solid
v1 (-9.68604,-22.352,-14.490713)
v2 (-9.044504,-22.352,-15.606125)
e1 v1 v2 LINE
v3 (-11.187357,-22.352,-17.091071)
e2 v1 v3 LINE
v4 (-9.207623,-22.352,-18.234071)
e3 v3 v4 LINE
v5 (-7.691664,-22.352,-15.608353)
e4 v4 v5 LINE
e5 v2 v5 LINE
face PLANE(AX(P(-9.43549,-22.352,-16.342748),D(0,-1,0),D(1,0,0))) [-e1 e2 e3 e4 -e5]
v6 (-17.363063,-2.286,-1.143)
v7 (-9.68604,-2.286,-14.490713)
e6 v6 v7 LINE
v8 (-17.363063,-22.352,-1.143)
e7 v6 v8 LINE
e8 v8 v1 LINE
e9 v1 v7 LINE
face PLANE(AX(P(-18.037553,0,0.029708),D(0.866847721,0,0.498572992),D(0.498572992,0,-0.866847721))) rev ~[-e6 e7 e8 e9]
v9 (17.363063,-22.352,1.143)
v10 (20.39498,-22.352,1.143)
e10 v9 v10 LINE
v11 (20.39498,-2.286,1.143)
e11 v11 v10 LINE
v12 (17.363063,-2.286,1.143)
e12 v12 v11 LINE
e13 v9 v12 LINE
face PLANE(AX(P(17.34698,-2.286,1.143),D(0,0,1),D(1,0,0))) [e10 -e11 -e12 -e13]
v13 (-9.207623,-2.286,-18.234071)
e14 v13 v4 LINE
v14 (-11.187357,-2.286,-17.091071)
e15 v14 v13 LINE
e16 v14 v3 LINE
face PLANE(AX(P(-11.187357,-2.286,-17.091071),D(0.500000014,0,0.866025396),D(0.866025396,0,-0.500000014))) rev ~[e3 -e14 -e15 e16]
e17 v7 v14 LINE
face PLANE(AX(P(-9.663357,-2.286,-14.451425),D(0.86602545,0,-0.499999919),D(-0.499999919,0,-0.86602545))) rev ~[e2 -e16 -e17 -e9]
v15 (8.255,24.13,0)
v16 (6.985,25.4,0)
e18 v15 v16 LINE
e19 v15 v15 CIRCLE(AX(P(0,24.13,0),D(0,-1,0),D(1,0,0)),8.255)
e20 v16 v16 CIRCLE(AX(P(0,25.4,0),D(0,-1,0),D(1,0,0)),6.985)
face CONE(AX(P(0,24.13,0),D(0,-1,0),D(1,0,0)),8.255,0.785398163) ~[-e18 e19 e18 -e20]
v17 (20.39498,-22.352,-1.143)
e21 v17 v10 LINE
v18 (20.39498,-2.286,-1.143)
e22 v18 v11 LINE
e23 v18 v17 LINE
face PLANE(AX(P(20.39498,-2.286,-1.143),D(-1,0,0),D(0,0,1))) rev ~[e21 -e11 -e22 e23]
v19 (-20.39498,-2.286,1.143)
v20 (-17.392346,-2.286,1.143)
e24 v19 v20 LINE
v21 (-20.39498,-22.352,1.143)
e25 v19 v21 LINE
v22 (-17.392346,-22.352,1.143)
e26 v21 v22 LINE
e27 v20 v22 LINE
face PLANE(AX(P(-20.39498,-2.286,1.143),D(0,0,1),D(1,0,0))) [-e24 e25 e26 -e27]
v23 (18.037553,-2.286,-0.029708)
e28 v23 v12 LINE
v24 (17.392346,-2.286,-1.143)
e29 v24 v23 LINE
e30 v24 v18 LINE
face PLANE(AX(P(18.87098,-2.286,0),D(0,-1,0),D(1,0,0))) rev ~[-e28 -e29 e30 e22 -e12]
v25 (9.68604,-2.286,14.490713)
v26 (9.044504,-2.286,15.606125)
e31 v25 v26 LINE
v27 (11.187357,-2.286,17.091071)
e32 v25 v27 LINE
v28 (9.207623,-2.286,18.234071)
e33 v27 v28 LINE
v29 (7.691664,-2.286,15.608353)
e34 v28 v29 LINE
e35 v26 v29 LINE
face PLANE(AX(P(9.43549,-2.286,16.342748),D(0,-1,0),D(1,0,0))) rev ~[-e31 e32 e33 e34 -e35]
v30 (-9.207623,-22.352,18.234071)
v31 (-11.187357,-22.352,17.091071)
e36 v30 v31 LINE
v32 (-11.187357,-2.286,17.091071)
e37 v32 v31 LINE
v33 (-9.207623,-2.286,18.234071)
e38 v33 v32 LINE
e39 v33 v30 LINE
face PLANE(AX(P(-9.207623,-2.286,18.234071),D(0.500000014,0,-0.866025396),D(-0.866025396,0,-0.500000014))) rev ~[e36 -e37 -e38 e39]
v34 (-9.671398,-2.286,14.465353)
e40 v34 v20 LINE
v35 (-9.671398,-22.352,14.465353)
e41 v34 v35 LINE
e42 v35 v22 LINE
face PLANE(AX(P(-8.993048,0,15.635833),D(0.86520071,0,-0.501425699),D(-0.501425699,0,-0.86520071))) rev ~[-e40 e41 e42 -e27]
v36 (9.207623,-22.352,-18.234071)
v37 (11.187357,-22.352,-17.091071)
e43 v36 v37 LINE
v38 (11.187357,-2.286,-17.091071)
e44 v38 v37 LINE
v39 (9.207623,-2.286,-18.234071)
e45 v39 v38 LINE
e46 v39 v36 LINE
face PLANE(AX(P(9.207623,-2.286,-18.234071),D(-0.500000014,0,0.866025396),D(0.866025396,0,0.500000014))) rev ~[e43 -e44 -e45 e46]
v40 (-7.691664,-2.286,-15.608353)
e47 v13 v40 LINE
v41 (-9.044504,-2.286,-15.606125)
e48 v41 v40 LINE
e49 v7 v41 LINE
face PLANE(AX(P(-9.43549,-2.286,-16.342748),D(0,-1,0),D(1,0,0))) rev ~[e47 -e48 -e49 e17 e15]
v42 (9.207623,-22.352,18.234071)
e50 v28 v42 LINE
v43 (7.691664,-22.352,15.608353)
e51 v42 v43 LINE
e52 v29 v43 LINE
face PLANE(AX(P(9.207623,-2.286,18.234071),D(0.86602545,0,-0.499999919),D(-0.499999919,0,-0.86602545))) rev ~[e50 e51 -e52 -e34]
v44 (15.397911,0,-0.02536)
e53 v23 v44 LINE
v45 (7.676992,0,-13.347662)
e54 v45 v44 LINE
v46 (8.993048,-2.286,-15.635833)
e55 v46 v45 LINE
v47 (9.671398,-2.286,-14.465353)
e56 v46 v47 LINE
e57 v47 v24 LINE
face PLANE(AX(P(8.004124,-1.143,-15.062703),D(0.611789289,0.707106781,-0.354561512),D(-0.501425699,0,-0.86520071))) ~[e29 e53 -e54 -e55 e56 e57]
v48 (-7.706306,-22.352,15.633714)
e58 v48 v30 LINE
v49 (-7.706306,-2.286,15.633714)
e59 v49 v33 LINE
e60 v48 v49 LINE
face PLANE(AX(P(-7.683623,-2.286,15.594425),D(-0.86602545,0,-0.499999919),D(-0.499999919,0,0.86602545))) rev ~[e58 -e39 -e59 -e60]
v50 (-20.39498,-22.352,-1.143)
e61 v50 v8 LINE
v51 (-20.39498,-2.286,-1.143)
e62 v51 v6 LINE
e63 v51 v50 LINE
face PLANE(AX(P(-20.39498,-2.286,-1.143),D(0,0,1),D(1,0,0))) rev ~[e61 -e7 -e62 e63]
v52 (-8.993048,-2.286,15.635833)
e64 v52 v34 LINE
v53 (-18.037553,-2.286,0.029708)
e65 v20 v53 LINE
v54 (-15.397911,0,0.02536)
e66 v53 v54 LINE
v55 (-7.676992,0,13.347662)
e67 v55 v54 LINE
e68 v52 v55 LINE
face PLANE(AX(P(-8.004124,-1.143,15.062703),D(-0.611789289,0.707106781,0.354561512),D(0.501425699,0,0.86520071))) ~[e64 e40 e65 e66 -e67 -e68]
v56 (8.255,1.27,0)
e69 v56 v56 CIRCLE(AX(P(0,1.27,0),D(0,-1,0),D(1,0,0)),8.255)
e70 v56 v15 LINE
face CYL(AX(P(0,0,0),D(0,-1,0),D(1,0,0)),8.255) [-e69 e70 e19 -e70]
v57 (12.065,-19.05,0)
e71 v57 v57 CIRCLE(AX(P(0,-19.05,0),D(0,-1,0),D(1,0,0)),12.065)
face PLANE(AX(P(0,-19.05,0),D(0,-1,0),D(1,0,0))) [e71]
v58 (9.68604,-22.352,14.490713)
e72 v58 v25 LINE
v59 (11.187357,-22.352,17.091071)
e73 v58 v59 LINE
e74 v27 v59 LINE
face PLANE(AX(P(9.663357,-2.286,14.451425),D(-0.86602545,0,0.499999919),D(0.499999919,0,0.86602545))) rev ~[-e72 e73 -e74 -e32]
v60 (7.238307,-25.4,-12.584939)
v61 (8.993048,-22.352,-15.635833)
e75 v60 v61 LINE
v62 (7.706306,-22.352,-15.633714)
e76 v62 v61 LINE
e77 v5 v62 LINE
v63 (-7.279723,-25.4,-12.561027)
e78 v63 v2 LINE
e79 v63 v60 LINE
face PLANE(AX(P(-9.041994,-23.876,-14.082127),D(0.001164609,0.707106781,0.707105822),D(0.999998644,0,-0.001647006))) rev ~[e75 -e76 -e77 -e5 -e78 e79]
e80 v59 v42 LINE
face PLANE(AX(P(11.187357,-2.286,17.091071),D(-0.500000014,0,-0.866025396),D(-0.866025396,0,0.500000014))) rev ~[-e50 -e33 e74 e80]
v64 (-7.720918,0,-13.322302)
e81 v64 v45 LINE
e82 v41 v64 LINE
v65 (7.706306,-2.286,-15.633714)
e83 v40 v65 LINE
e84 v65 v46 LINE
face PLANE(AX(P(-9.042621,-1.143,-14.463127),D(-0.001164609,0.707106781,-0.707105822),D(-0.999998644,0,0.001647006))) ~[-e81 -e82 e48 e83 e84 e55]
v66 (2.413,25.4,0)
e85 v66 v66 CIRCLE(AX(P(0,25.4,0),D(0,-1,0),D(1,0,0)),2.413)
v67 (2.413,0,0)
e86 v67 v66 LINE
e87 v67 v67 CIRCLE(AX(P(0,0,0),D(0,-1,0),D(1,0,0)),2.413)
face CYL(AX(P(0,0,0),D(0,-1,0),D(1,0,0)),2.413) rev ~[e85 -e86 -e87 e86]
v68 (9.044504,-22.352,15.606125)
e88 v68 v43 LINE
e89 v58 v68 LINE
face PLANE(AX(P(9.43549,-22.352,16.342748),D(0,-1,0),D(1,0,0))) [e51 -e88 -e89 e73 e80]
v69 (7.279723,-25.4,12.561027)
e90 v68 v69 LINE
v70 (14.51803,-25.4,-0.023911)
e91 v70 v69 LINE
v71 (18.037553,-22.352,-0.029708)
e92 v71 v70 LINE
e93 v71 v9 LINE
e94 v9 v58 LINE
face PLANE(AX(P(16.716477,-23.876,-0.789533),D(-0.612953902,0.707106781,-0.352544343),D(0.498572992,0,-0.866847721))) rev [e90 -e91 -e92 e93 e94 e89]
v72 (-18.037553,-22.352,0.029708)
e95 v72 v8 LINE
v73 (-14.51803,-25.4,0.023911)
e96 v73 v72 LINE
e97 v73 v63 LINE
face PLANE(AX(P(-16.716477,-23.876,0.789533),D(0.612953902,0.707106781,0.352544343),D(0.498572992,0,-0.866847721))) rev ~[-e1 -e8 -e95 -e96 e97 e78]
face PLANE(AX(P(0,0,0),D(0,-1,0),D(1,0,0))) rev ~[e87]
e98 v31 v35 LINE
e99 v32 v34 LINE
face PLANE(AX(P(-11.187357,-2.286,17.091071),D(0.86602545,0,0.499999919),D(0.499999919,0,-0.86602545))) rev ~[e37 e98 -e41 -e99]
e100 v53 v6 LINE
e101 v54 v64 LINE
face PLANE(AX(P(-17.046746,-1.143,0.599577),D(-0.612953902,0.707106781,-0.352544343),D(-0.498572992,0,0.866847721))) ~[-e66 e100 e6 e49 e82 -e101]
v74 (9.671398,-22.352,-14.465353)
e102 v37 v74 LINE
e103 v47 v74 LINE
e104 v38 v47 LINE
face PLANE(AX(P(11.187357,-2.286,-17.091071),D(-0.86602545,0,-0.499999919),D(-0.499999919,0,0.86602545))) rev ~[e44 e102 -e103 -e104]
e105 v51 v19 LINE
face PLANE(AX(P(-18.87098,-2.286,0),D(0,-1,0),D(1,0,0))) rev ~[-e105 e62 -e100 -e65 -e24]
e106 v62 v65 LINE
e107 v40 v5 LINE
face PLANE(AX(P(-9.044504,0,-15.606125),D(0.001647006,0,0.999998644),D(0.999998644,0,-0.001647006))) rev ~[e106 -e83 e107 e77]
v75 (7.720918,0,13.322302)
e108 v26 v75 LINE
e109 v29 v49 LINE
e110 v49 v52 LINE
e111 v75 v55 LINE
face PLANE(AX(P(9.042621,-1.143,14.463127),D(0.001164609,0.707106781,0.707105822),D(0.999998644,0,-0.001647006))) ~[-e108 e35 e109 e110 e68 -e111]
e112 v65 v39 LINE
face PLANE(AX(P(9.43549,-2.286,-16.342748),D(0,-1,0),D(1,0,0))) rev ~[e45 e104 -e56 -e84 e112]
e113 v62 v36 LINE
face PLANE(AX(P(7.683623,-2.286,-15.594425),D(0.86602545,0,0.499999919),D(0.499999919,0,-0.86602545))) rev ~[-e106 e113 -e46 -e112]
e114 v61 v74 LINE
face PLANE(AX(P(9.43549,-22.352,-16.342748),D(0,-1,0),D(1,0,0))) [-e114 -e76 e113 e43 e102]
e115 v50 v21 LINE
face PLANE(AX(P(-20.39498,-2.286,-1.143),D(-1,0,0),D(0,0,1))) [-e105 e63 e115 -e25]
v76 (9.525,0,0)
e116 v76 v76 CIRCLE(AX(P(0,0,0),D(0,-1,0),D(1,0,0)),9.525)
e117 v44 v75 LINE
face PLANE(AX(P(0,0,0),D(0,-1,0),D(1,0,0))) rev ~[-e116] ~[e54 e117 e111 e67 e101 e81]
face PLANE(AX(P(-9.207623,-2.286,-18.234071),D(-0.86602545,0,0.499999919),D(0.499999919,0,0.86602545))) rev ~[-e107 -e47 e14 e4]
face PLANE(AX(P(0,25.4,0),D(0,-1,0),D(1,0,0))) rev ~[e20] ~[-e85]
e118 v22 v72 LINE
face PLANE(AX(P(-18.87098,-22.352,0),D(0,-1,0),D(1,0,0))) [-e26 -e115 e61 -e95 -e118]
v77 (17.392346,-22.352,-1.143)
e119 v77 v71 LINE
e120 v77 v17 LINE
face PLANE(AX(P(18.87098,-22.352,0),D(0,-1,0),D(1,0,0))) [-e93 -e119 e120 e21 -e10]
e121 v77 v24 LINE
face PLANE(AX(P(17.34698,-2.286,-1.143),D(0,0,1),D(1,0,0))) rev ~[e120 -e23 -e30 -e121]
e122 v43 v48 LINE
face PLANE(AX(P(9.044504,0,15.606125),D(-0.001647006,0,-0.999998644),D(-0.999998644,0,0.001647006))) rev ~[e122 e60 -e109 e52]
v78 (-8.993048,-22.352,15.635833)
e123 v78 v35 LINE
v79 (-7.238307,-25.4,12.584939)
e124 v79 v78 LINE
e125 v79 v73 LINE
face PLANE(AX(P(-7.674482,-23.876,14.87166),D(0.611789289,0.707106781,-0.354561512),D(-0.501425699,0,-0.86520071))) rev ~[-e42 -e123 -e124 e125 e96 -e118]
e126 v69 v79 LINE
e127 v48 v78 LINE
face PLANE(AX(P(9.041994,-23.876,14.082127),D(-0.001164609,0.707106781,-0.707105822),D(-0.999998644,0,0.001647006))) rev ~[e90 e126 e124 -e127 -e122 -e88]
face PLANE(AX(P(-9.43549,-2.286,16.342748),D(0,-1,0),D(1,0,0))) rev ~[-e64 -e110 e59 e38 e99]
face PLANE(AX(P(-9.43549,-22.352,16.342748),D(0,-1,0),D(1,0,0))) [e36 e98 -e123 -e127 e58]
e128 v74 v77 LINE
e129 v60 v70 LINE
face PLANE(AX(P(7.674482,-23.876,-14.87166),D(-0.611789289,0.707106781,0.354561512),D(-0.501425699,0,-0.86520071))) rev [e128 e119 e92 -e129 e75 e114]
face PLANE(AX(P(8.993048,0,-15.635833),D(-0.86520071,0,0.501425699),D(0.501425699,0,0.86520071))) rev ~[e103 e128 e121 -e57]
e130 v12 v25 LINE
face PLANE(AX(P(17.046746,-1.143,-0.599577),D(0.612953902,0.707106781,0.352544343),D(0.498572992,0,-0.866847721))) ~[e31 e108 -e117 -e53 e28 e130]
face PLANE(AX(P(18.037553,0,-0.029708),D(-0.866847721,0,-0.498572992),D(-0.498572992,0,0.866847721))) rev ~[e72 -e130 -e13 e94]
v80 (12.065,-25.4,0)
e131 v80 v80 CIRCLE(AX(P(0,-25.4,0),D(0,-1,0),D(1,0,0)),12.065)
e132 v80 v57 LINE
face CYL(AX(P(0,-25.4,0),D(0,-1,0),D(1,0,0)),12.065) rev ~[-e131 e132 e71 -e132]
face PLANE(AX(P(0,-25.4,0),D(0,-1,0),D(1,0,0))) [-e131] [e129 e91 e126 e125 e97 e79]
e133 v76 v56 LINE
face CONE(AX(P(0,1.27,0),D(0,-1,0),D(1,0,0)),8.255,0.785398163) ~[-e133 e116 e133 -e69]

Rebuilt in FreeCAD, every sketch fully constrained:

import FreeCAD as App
import Part
import Sketcher
from FreeCAD import Vector
Q = App.Units.Quantity


def edges_at(feature, points):
    """Names of the edges that pass closest to the given points."""
    edges = feature.Shape.Edges
    near = lambda p: min(range(len(edges)), key=lambda i: edges[i].distToShape(Part.Vertex(*p))[0])
    return sorted({f"Edge{near(p) + 1}" for p in points})

doc = App.newDocument("Part")
body = doc.addObject("PartDesign::Body", "Body")

sketch1 = body.newObject("Sketcher::SketchObject", "Sketch")
sketch1.AttachmentSupport = (doc.getObject("XZ_Plane"), [""])
sketch1.MapMode = "FlatFace"
sketch1.addGeometry([
    Part.LineSegment(Vector(18.037553, -0.029708, 0), Vector(9.044504, 15.606125, 0)),
    Part.LineSegment(Vector(9.044504, 15.606125, 0), Vector(-8.993048, 15.635833, 0)),
    Part.LineSegment(Vector(-8.993048, 15.635833, 0), Vector(-18.037553, 0.029708, 0)),
    Part.LineSegment(Vector(-18.037553, 0.029708, 0), Vector(-9.044504, -15.606125, 0)),
    Part.LineSegment(Vector(-9.044504, -15.606125, 0), Vector(8.993048, -15.635833, 0)),
    Part.LineSegment(Vector(8.993048, -15.635833, 0), Vector(18.037553, -0.029708, 0)),
], False)
sketch1.addConstraint([
    Sketcher.Constraint("Coincident", 0, 2, 1, 1),
    Sketcher.Constraint("Coincident", 1, 2, 2, 1),
    Sketcher.Constraint("Coincident", 2, 2, 3, 1),
    Sketcher.Constraint("Coincident", 3, 2, 4, 1),
    Sketcher.Constraint("Coincident", 4, 2, 5, 1),
    Sketcher.Constraint("Coincident", 5, 2, 0, 1),
    Sketcher.Constraint("DistanceX", 2, 2, 4, 2, Q("27.030601 mm")),
    Sketcher.Constraint("DistanceX", 1, 2, 5, 2, Q("27.030601 mm")),
    Sketcher.Constraint("DistanceX", 1, 2, 0, 2, Q("18.037552 mm")),
    Sketcher.Constraint("DistanceX", 2, 2, 3, 2, Q("8.993049 mm")),
    Sketcher.Constraint("DistanceY", 3, 2, 1, 2, Q("31.241958 mm")),
    Sketcher.Constraint("DistanceX", 3, 2, 0, 2, Q("18.089008 mm")),
    Sketcher.Constraint("DistanceY", 3, 2, 0, 2, Q("31.21225 mm")),
    Sketcher.Constraint("DistanceY", 4, 2, 2, 2, Q("15.665541 mm")),
    Sketcher.Constraint("DistanceY", 4, 2, 0, 2, Q("31.241958 mm")),
    Sketcher.Constraint("DistanceY", 5, 2, 1, 2, Q("15.665541 mm")),
    Sketcher.Constraint("DistanceX", -1, 1, 0, 2, Q("9.044504 mm")),
    Sketcher.Constraint("DistanceY", -1, 1, 0, 2, Q("15.606125 mm")),
])
pad1 = body.newObject("PartDesign::Pad", "Pad")
pad1.Profile = sketch1
pad1.Length = Q("1 in")
doc.recompute()

chamfer = body.newObject("PartDesign::Chamfer", "Chamfer")
chamfer.Base = (pad1, edges_at(pad1, [
    (13.541, 0, 7.788),
    (0.026, 0, 15.621),
    (-13.515, 0, 7.833),
    (-13.541, 0, -7.788),
    (-0.026, 0, -15.621),
    (13.515, 0, -7.833),
]))
chamfer.Size = Q("0.09 in")
doc.recompute()

chamfer2 = body.newObject("PartDesign::Chamfer", "Chamfer001")
chamfer2.Base = (chamfer, edges_at(chamfer, [
    (13.541, -25.4, 7.788),
    (0.026, -25.4, 15.621),
    (-13.515, -25.4, 7.833),
    (-13.541, -25.4, -7.788),
    (-0.026, -25.4, -15.621),
    (13.515, -25.4, -7.833),
]))
chamfer2.Size = Q("0.12 in")

sketch2 = body.newObject("Sketcher::SketchObject", "Sketch001")
sketch2.AttachmentSupport = (doc.getObject("XZ_Plane"), [""])
sketch2.MapMode = "FlatFace"
sketch2.AttachmentOffset = App.Placement(Vector(0, 0, 0.09 * 25.4), App.Rotation())
sketch2.addGeometry([
    Part.LineSegment(Vector(17.3, 1.1, 0), Vector(17.3, -1.1, 0)),
    Part.LineSegment(Vector(17.3, -1.1, 0), Vector(20.4, -1.1, 0)),
    Part.LineSegment(Vector(20.4, -1.1, 0), Vector(20.4, 1.1, 0)),
    Part.LineSegment(Vector(20.4, 1.1, 0), Vector(17.3, 1.1, 0)),
    Part.LineSegment(Vector(9.2, 18.2, 0), Vector(7.7, 15.6, 0)),
    Part.LineSegment(Vector(7.7, 15.6, 0), Vector(9.7, 14.5, 0)),
    Part.LineSegment(Vector(9.7, 14.5, 0), Vector(11.2, 17.1, 0)),
    Part.LineSegment(Vector(11.2, 17.1, 0), Vector(9.2, 18.2, 0)),
    Part.LineSegment(Vector(-11.2, 17.1, 0), Vector(-9.7, 14.5, 0)),
    Part.LineSegment(Vector(-9.7, 14.5, 0), Vector(-7.7, 15.6, 0)),
    Part.LineSegment(Vector(-7.7, 15.6, 0), Vector(-9.2, 18.2, 0)),
    Part.LineSegment(Vector(-9.2, 18.2, 0), Vector(-11.2, 17.1, 0)),
    Part.LineSegment(Vector(-20.4, 1.1, 0), Vector(-20.4, -1.1, 0)),
    Part.LineSegment(Vector(-20.4, -1.1, 0), Vector(-17.3, -1.1, 0)),
    Part.LineSegment(Vector(-17.3, -1.1, 0), Vector(-17.3, 1.1, 0)),
    Part.LineSegment(Vector(-17.3, 1.1, 0), Vector(-20.4, 1.1, 0)),
    Part.LineSegment(Vector(-9.2, -18.2, 0), Vector(-7.7, -15.6, 0)),
    Part.LineSegment(Vector(-7.7, -15.6, 0), Vector(-9.7, -14.5, 0)),
    Part.LineSegment(Vector(-9.7, -14.5, 0), Vector(-11.2, -17.1, 0)),
    Part.LineSegment(Vector(-11.2, -17.1, 0), Vector(-9.2, -18.2, 0)),
    Part.LineSegment(Vector(11.2, -17.1, 0), Vector(9.7, -14.5, 0)),
    Part.LineSegment(Vector(9.7, -14.5, 0), Vector(7.7, -15.6, 0)),
    Part.LineSegment(Vector(7.7, -15.6, 0), Vector(9.2, -18.2, 0)),
    Part.LineSegment(Vector(9.2, -18.2, 0), Vector(11.2, -17.1, 0)),
], False)
sketch2.addConstraint([
    Sketcher.Constraint("Coincident", 0, 2, 1, 1),
    Sketcher.Constraint("Coincident", 1, 2, 2, 1),
    Sketcher.Constraint("Coincident", 2, 2, 3, 1),
    Sketcher.Constraint("Coincident", 3, 2, 0, 1),
    Sketcher.Constraint("Coincident", 4, 2, 5, 1),
    Sketcher.Constraint("Coincident", 5, 2, 6, 1),
    Sketcher.Constraint("Coincident", 6, 2, 7, 1),
    Sketcher.Constraint("Coincident", 7, 2, 4, 1),
    Sketcher.Constraint("Coincident", 8, 2, 9, 1),
    Sketcher.Constraint("Coincident", 9, 2, 10, 1),
    Sketcher.Constraint("Coincident", 10, 2, 11, 1),
    Sketcher.Constraint("Coincident", 11, 2, 8, 1),
    Sketcher.Constraint("Coincident", 12, 2, 13, 1),
    Sketcher.Constraint("Coincident", 13, 2, 14, 1),
    Sketcher.Constraint("Coincident", 14, 2, 15, 1),
    Sketcher.Constraint("Coincident", 15, 2, 12, 1),
    Sketcher.Constraint("Coincident", 16, 2, 17, 1),
    Sketcher.Constraint("Coincident", 17, 2, 18, 1),
    Sketcher.Constraint("Coincident", 18, 2, 19, 1),
    Sketcher.Constraint("Coincident", 19, 2, 16, 1),
    Sketcher.Constraint("Coincident", 20, 2, 21, 1),
    Sketcher.Constraint("Coincident", 21, 2, 22, 1),
    Sketcher.Constraint("Coincident", 22, 2, 23, 1),
    Sketcher.Constraint("Coincident", 23, 2, 20, 1),
    Sketcher.Constraint("Vertical", 0),
    Sketcher.Constraint("Horizontal", 1),
    Sketcher.Constraint("Vertical", 2),
    Sketcher.Constraint("Horizontal", 3),
    Sketcher.Constraint("Vertical", 12),
    Sketcher.Constraint("Horizontal", 13),
    Sketcher.Constraint("Vertical", 14),
    Sketcher.Constraint("Horizontal", 15),
    Sketcher.Constraint("Symmetric", 2, 2, 12, 2, -1, 1),
    Sketcher.Constraint("Symmetric", 0, 2, 14, 2, -1, 1),
    Sketcher.Constraint("Symmetric", 4, 2, 16, 2, -1, 1),
    Sketcher.Constraint("Symmetric", 5, 2, 17, 2, -1, 1),
    Sketcher.Constraint("Symmetric", 6, 2, 18, 2, -1, 1),
    Sketcher.Constraint("Symmetric", 7, 2, 19, 2, -1, 1),
    Sketcher.Constraint("Symmetric", 8, 2, 20, 2, -1, 1),
    Sketcher.Constraint("Symmetric", 9, 2, 21, 2, -1, 1),
    Sketcher.Constraint("Symmetric", 10, 2, 22, 2, -1, 1),
    Sketcher.Constraint("Symmetric", 11, 2, 23, 2, -1, 1),
    Sketcher.Constraint("Symmetric", 5, 2, 8, 2, -2),
    Sketcher.Constraint("Symmetric", 4, 2, 9, 2, -2),
    Sketcher.Constraint("Symmetric", 7, 2, 10, 2, -2),
    Sketcher.Constraint("Symmetric", 6, 2, 11, 2, -2),
    Sketcher.Constraint("Perpendicular", 4, 5),
    Sketcher.Constraint("Perpendicular", 5, 6),
    Sketcher.Constraint("Perpendicular", 6, 7),
    Sketcher.Constraint("Horizontal", 1, 2, 12, 2),
    Sketcher.Constraint("Angle", 4, Q("-119.999995 deg")),
    Sketcher.Constraint("DistanceX", 1, 1, 1, 2, Q("0.12 in")),
    Sketcher.Constraint("DistanceY", 0, 2, 0, 1, Q("0.09 in")),
    Sketcher.Constraint("Distance", 4, Q("0.12 in")),
    Sketcher.Constraint("Distance", 5, Q("0.09 in")),
    Sketcher.Constraint("DistanceX", -1, 1, 0, 2, Q("17.34698 mm")),
    Sketcher.Constraint("DistanceY", -1, 1, 6, 2, Q("17.091071 mm")),
    Sketcher.Constraint("DistanceX", 8, 2, 4, 2, Q("17.34698 mm")),
])
pad2 = body.newObject("PartDesign::Pad", "Pad001")
pad2.Profile = sketch2
pad2.Length = Q("0.79 in")

sketch3 = body.newObject("Sketcher::SketchObject", "Sketch002")
sketch3.AttachmentSupport = (doc.getObject("XZ_Plane"), [""])
sketch3.MapMode = "FlatFace"
sketch3.addGeometry(Part.Circle(Vector(0, 0, 0), Vector(0, 0, 1), 8), False)
sketch3.addConstraint([
    Sketcher.Constraint("Coincident", 0, 3, -1, 1),
    Sketcher.Constraint("Diameter", 0, Q("0.65 in")),
])
pad3 = body.newObject("PartDesign::Pad", "Pad002")
pad3.Profile = sketch3
pad3.Length = Q("1 in")
pad3.Reversed = True

sketch4 = body.newObject("Sketcher::SketchObject", "Sketch003")
sketch4.AttachmentSupport = (doc.getObject("XZ_Plane"), [""])
sketch4.MapMode = "FlatFace"
sketch4.addGeometry(Part.Circle(Vector(0, 0, 0), Vector(0, 0, 1), 2.4), False)
sketch4.addConstraint([
    Sketcher.Constraint("Coincident", 0, 3, -1, 1),
    Sketcher.Constraint("Diameter", 0, Q("0.19 in")),
])
pocket1 = body.newObject("PartDesign::Pocket", "Pocket")
pocket1.Profile = sketch4
pocket1.Length = Q("1 in")
doc.recompute()

chamfer3 = body.newObject("PartDesign::Chamfer", "Chamfer002")
chamfer3.Base = (pocket1, edges_at(pocket1, [(8.255, 12.7, 0), (-8.255, 0, 0), (-8.255, 25.4, 0)]))
chamfer3.Size = Q("0.05 in")

sketch5 = body.newObject("Sketcher::SketchObject", "Sketch004")
sketch5.AttachmentSupport = (doc.getObject("XZ_Plane"), [""])
sketch5.MapMode = "FlatFace"
sketch5.AttachmentOffset = App.Placement(Vector(0, 0, 1 * 25.4), App.Rotation())
sketch5.addGeometry(Part.Circle(Vector(0, 0, 0), Vector(0, 0, 1), 12), False)
sketch5.addConstraint([
    Sketcher.Constraint("Coincident", 0, 3, -1, 1),
    Sketcher.Constraint("Diameter", 0, Q("0.95 in")),
])
pocket2 = body.newObject("PartDesign::Pocket", "Pocket001")
pocket2.Profile = sketch5
pocket2.Length = Q("0.25 in")

doc.recompute()
